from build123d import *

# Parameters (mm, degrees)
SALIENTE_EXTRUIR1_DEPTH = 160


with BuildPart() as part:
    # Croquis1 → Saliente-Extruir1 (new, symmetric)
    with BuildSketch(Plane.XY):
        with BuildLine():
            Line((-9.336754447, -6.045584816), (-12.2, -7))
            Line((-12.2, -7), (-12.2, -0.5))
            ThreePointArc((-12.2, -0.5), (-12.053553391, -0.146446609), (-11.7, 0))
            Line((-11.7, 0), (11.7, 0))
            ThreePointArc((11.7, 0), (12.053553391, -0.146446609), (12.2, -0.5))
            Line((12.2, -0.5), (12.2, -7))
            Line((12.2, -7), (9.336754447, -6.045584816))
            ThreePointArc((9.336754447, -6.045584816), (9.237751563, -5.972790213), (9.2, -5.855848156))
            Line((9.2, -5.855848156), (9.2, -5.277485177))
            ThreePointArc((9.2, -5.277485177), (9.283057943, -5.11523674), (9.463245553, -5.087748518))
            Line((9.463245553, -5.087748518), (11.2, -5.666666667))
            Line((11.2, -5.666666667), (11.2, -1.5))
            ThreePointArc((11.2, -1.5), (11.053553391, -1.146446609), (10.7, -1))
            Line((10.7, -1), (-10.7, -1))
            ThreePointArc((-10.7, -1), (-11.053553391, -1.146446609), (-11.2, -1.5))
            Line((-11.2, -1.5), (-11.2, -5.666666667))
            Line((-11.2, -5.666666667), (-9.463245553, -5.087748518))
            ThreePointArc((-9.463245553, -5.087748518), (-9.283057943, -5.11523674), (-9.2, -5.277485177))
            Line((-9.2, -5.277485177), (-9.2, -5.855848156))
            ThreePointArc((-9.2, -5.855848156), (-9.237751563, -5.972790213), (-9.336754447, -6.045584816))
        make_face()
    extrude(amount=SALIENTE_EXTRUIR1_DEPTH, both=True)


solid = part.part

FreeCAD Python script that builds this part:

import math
import FreeCAD as App
import Part
import Sketcher

doc = App.newDocument("Part")
body = doc.addObject("PartDesign::Body", "Body")

# Sketch on XY plane
sketch1 = body.newObject("Sketcher::SketchObject", "Sketch")
sketch1.AttachmentSupport = (doc.getObject("XY_Plane"), [""])
sketch1.MapMode = "FlatFace"
sketch1.addGeometry([
    Part.LineSegment(App.Vector(-12.2, -7, 0), App.Vector(-9.34, -6.05, 0)),  # 0
    Part.ArcOfCircle(Part.Circle(App.Vector(-9.4, -5.86, 0), App.Vector(0, 0, 1), 0.2), math.radians(-72), math.radians(0)),  # 1
    Part.LineSegment(App.Vector(-9.2, -5.86, 0), App.Vector(-9.2, -5.28, 0)),  # 2
    Part.ArcOfCircle(Part.Circle(App.Vector(-9.4, -5.28, 0), App.Vector(0, 0, 1), 0.2), math.radians(0), math.radians(108)),  # 3
    Part.LineSegment(App.Vector(-9.46, -5.09, 0), App.Vector(-11.2, -5.67, 0)),  # 4
    Part.LineSegment(App.Vector(-11.2, -5.67, 0), App.Vector(-11.2, -1.5, 0)),  # 5
    Part.ArcOfCircle(Part.Circle(App.Vector(-10.7, -1.5, 0), App.Vector(0, 0, 1), 0.5), math.radians(90), math.radians(180)),  # 6
    Part.LineSegment(App.Vector(-10.7, -1, 0), App.Vector(10.7, -1, 0)),  # 7
    Part.ArcOfCircle(Part.Circle(App.Vector(10.7, -1.5, 0), App.Vector(0, 0, 1), 0.5), math.radians(0), math.radians(90)),  # 8
    Part.LineSegment(App.Vector(11.2, -1.5, 0), App.Vector(11.2, -5.67, 0)),  # 9
    Part.LineSegment(App.Vector(11.2, -5.67, 0), App.Vector(9.46, -5.09, 0)),  # 10
    Part.ArcOfCircle(Part.Circle(App.Vector(9.4, -5.28, 0), App.Vector(0, 0, 1), 0.2), math.radians(72), math.radians(180)),  # 11
    Part.LineSegment(App.Vector(9.2, -5.28, 0), App.Vector(9.2, -5.86, 0)),  # 12
    Part.ArcOfCircle(Part.Circle(App.Vector(9.4, -5.86, 0), App.Vector(0, 0, 1), 0.2), math.radians(180), math.radians(252)),  # 13
    Part.LineSegment(App.Vector(9.34, -6.05, 0), App.Vector(12.2, -7, 0)),  # 14
    Part.LineSegment(App.Vector(12.2, -7, 0), App.Vector(12.2, -0.5, 0)),  # 15
    Part.ArcOfCircle(Part.Circle(App.Vector(11.7, -0.5, 0), App.Vector(0, 0, 1), 0.5), math.radians(0), math.radians(90)),  # 16
    Part.LineSegment(App.Vector(11.7, 0, 0), App.Vector(-11.7, 0, 0)),  # 17
    Part.ArcOfCircle(Part.Circle(App.Vector(-11.7, -0.5, 0), App.Vector(0, 0, 1), 0.5), math.radians(90), math.radians(180)),  # 18
    Part.LineSegment(App.Vector(-12.2, -0.5, 0), App.Vector(-12.2, -7, 0)),  # 19
], False)
sketch1.addConstraint([
    Sketcher.Constraint("Tangent", 0, 2, 1, 1),
    Sketcher.Constraint("Tangent", 1, 2, 2, 1),
    Sketcher.Constraint("Tangent", 2, 2, 3, 1),
    Sketcher.Constraint("Tangent", 3, 2, 4, 1),
    Sketcher.Constraint("Coincident", 4, 2, 5, 1),
    Sketcher.Constraint("Tangent", 5, 2, 6, 2),
    Sketcher.Constraint("Tangent", 6, 1, 7, 1),
    Sketcher.Constraint("Tangent", 7, 2, 8, 2),
    Sketcher.Constraint("Tangent", 8, 1, 9, 1),
    Sketcher.Constraint("Coincident", 9, 2, 10, 1),
    Sketcher.Constraint("Tangent", 10, 2, 11, 1),
    Sketcher.Constraint("Tangent", 11, 2, 12, 1),
    Sketcher.Constraint("Tangent", 12, 2, 13, 1),
    Sketcher.Constraint("Tangent", 13, 2, 14, 1),
    Sketcher.Constraint("Coincident", 14, 2, 15, 1),
    Sketcher.Constraint("Tangent", 15, 2, 16, 1),
    Sketcher.Constraint("Tangent", 16, 2, 17, 1),
    Sketcher.Constraint("Tangent", 17, 2, 18, 1),
    Sketcher.Constraint("Tangent", 18, 2, 19, 1),
    Sketcher.Constraint("Coincident", 19, 2, 0, 1),
    Sketcher.Constraint("Vertical", 2),
    Sketcher.Constraint("Vertical", 5),
    Sketcher.Constraint("Horizontal", 7),
    Sketcher.Constraint("Vertical", 9),
    Sketcher.Constraint("Vertical", 12),
    Sketcher.Constraint("Vertical", 15),
    Sketcher.Constraint("Horizontal", 17),
    Sketcher.Constraint("Vertical", 19),
    Sketcher.Constraint("Equal", 1, 3),
    Sketcher.Constraint("Equal", 6, 8),
    Sketcher.Constraint("Equal", 3, 11),
    Sketcher.Constraint("Equal", 11, 13),
    Sketcher.Constraint("Equal", 8, 16),
    Sketcher.Constraint("Equal", 16, 18),
    Sketcher.Constraint("Symmetric", 16, 2, 17, 2, -1, 1),
    Sketcher.Constraint("Symmetric", 3, 3, 11, 3, -2),
    Sketcher.Constraint("Symmetric", 4, 2, 9, 2, -2),
    Sketcher.Constraint("Symmetric", 0, 2, 13, 2, -2),
    Sketcher.Constraint("Parallel", 0, 4),
    Sketcher.Constraint("Radius", 1, 0.2),
    Sketcher.Constraint("Radius", 6, 0.5),
    Sketcher.Constraint("DistanceX", 7, 1, 7, 2, 21.4),
    Sketcher.Constraint("DistanceX", 17, 2, 17, 1, 23.4),
    Sketcher.Constraint("DistanceY", 15, 1, 15, 2, 6.5),
    Sketcher.Constraint("DistanceY", 6, 1, -1, 1, 1.0),
    Sketcher.Constraint("DistanceX", 4, 2, 1, 2, 2.0),
    Sketcher.Constraint("Distance", 4, 1.8307),
    Sketcher.Constraint("DistanceY", 0, 2, 3, 3, 0.7681),
])
pad1 = body.newObject("PartDesign::Pad", "Pad")
pad1.Profile = sketch1
pad1.Length = 320
pad1.Midplane = True

doc.recompute()
